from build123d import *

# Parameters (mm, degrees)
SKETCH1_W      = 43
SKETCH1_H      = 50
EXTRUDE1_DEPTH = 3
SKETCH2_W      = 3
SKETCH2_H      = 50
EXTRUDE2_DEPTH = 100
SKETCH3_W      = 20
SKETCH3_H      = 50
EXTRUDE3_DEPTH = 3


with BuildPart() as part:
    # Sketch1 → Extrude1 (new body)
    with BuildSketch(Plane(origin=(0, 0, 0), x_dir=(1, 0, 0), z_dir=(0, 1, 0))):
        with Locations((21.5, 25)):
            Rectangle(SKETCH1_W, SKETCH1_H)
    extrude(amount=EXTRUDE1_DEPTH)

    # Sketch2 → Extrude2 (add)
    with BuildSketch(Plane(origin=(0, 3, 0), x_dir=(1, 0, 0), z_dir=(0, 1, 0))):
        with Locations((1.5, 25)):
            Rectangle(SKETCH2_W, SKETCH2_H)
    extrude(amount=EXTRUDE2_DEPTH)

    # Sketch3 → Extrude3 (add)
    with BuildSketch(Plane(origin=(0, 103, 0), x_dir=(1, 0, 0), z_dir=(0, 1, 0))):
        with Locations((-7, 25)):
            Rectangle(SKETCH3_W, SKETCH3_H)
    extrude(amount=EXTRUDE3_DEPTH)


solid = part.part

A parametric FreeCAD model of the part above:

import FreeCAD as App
import Part
import Sketcher
from FreeCAD import Vector


def add_polygon(sketch, points):
    """Adds a closed chain of lines whose ends are joined by coincident constraints."""
    first, n = sketch.GeometryCount, len(points)
    for a, b in zip(points, points[1:] + points[:1]):
        sketch.addGeometry(Part.LineSegment(App.Vector(*a, 0), App.Vector(*b, 0)), False)
    for i in range(n):
        sketch.addConstraint(Sketcher.Constraint("Coincident", first + i, 2, first + (i + 1) % n, 1))

doc = App.newDocument("Part")
params = doc.addObject("Spreadsheet::Sheet", "Params")
for row, (alias, value) in enumerate([
    ("sketch1_width", "43 mm"),
    ("sketch1_height", "50 mm"),
    ("pad1_length", "3 mm"),
    ("sketch2_width", "3 mm"),
    ("sketch2_height", "50 mm"),
    ("pad2_length", "100 mm"),
    ("sketch3_width", "20 mm"),
    ("sketch3_height", "50 mm"),
    ("pad3_length", "3 mm"),
], start=1):
    params.set(f"A{row}", alias)
    params.set(f"B{row}", "=" + value)
    params.setAlias(f"B{row}", alias)

body = doc.addObject("PartDesign::Body", "Body")

# Sketch on XZ plane
sketch1 = body.newObject("Sketcher::SketchObject", "Sketch")
sketch1.AttachmentSupport = (doc.getObject("XZ_Plane"), [""])
sketch1.MapMode = "FlatFace"
add_polygon(sketch1, [(0, -50), (0, 0), (43, 0), (43, -50)])  # lines 0-3
sketch1.addConstraint(Sketcher.Constraint("Vertical", 0))
sketch1.addConstraint(Sketcher.Constraint("Horizontal", 1))
sketch1.addConstraint(Sketcher.Constraint("Vertical", 2))
sketch1.addConstraint(Sketcher.Constraint("Horizontal", 3))
sketch1.addConstraint(Sketcher.Constraint("Coincident", 0, 2, -1, 1))
sketch1.addConstraint(Sketcher.Constraint("DistanceX", 1, 1, 1, 2, 43.0))
sketch1.addConstraint(Sketcher.Constraint("DistanceY", 0, 1, 0, 2, 50.0))
sketch1.setExpression("Constraints[9]", "Params.sketch1_width")
sketch1.setExpression("Constraints[10]", "Params.sketch1_height")
pad1 = body.newObject("PartDesign::Pad", "Pad")
pad1.Profile = sketch1
pad1.setExpression("Length", "Params.pad1_length")
pad1.Reversed = True

# Sketch on XZ plane
sketch2 = body.newObject("Sketcher::SketchObject", "Sketch001")
sketch2.AttachmentSupport = (doc.getObject("XZ_Plane"), [""])
sketch2.MapMode = "FlatFace"
sketch2.AttachmentOffset = App.Placement(Vector(0, 0, -3), App.Rotation())
add_polygon(sketch2, [(0, -50), (0, 0), (3, 0), (3, -50)])  # lines 0-3
sketch2.addConstraint(Sketcher.Constraint("Vertical", 0))
sketch2.addConstraint(Sketcher.Constraint("Horizontal", 1))
sketch2.addConstraint(Sketcher.Constraint("Vertical", 2))
sketch2.addConstraint(Sketcher.Constraint("Horizontal", 3))
sketch2.addConstraint(Sketcher.Constraint("Coincident", 0, 2, -1, 1))
sketch2.addConstraint(Sketcher.Constraint("DistanceX", 1, 1, 1, 2, 3.0))
sketch2.addConstraint(Sketcher.Constraint("DistanceY", 0, 1, 0, 2, 50.0))
sketch2.setExpression("Constraints[9]", "Params.sketch2_width")
sketch2.setExpression("Constraints[10]", "Params.sketch2_height")
pad2 = body.newObject("PartDesign::Pad", "Pad001")
pad2.Profile = sketch2
pad2.setExpression("Length", "Params.pad2_length")
pad2.Reversed = True

# Sketch on XZ plane
sketch3 = body.newObject("Sketcher::SketchObject", "Sketch002")
sketch3.AttachmentSupport = (doc.getObject("XZ_Plane"), [""])
sketch3.MapMode = "FlatFace"
sketch3.AttachmentOffset = App.Placement(Vector(0, 0, -103), App.Rotation())
add_polygon(sketch3, [(-17, -50), (-17, 0), (3, 0), (3, -50)])  # lines 0-3
sketch3.addConstraint(Sketcher.Constraint("Vertical", 0))
sketch3.addConstraint(Sketcher.Constraint("Horizontal", 1))
sketch3.addConstraint(Sketcher.Constraint("Vertical", 2))
sketch3.addConstraint(Sketcher.Constraint("Horizontal", 3))
sketch3.addConstraint(Sketcher.Constraint("PointOnObject", 0, 2, -1))
sketch3.addConstraint(Sketcher.Constraint("DistanceX", 1, 1, 1, 2, 20.0))
sketch3.addConstraint(Sketcher.Constraint("DistanceY", 0, 1, 0, 2, 50.0))
sketch3.addConstraint(Sketcher.Constraint("DistanceX", 0, 2, -1, 1, 17.0))
sketch3.setExpression("Constraints[9]", "Params.sketch3_width")
sketch3.setExpression("Constraints[10]", "Params.sketch3_height")
pad3 = body.newObject("PartDesign::Pad", "Pad002")
pad3.Profile = sketch3
pad3.setExpression("Length", "Params.pad3_length")
pad3.Reversed = True

doc.recompute()
